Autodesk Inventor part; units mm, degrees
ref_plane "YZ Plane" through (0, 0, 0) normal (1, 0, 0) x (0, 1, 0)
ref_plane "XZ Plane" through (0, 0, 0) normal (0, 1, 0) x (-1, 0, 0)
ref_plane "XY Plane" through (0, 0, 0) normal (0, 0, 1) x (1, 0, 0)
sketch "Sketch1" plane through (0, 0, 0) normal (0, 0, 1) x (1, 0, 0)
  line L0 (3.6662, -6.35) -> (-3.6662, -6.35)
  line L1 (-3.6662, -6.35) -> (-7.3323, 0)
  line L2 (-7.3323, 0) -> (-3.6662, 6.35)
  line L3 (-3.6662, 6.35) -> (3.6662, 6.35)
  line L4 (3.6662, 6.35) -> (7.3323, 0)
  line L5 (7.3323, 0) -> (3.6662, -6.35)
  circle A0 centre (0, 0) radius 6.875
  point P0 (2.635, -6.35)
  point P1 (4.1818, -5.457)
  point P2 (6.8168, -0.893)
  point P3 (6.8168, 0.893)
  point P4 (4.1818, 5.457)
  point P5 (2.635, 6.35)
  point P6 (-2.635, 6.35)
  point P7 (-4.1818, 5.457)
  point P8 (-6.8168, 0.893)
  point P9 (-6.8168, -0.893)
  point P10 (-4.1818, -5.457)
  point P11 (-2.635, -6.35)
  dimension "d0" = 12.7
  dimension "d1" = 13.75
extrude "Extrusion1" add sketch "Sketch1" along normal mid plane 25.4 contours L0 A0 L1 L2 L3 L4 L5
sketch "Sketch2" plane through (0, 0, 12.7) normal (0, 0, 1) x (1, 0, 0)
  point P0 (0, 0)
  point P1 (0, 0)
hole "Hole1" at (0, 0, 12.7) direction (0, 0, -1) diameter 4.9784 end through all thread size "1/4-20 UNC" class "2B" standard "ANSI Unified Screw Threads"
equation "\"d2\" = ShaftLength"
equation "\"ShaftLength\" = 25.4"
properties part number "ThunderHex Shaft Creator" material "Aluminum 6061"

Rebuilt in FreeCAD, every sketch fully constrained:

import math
import FreeCAD as App
import Part
import Sketcher
from FreeCAD import Vector
Q = App.Units.Quantity

doc = App.newDocument("Part")
body = doc.addObject("PartDesign::Body", "Body")

sketch1 = body.newObject("Sketcher::SketchObject", "Sketch")
sketch1.AttachmentSupport = (doc.getObject("XY_Plane"), [""])
sketch1.MapMode = "FlatFace"
sketch1.addGeometry(Part.LineSegment(Vector(-2.6, -6.3, 0), Vector(2.6, -6.3, 0)), False)
sketch1.addGeometry(Part.ArcOfCircle(Part.Circle(Vector(0, 0, 0), Vector(0, 0, 1), 6.9), math.radians(-67.46), math.radians(-52.54)), False)
sketch1.addGeometry(Part.LineSegment(Vector(4.2, -5.5, 0), Vector(6.8, -0.9, 0)), False)
sketch1.addGeometry(Part.ArcOfCircle(Part.Circle(Vector(0, 0, 0), Vector(0, 0, 1), 6.9), math.radians(-7.46), math.radians(7.46)), False)
sketch1.addGeometry(Part.LineSegment(Vector(6.8, 0.9, 0), Vector(4.2, 5.5, 0)), False)
sketch1.addGeometry(Part.ArcOfCircle(Part.Circle(Vector(0, 0, 0), Vector(0, 0, 1), 6.9), math.radians(52.54), math.radians(67.46)), False)
sketch1.addGeometry(Part.LineSegment(Vector(2.6, 6.3, 0), Vector(-2.6, 6.3, 0)), False)
sketch1.addGeometry(Part.ArcOfCircle(Part.Circle(Vector(0, 0, 0), Vector(0, 0, 1), 6.9), math.radians(112.54), math.radians(127.46)), False)
sketch1.addGeometry(Part.LineSegment(Vector(-4.2, 5.5, 0), Vector(-6.8, 0.9, 0)), False)
sketch1.addGeometry(Part.ArcOfCircle(Part.Circle(Vector(0, 0, 0), Vector(0, 0, 1), 6.9), math.radians(172.54), math.radians(187.46)), False)
sketch1.addGeometry(Part.LineSegment(Vector(-6.8, -0.9, 0), Vector(-4.2, -5.5, 0)), False)
sketch1.addGeometry(Part.ArcOfCircle(Part.Circle(Vector(0, 0, 0), Vector(0, 0, 1), 6.9), math.radians(-127.46), math.radians(-112.54)), False)
sketch1.addConstraint(Sketcher.Constraint("Coincident", 0, 2, 1, 1))
sketch1.addConstraint(Sketcher.Constraint("Coincident", 1, 2, 2, 1))
sketch1.addConstraint(Sketcher.Constraint("Coincident", 2, 2, 3, 1))
sketch1.addConstraint(Sketcher.Constraint("Coincident", 3, 2, 4, 1))
sketch1.addConstraint(Sketcher.Constraint("Coincident", 4, 2, 5, 1))
sketch1.addConstraint(Sketcher.Constraint("Coincident", 5, 2, 6, 1))
sketch1.addConstraint(Sketcher.Constraint("Coincident", 6, 2, 7, 1))
sketch1.addConstraint(Sketcher.Constraint("Coincident", 7, 2, 8, 1))
sketch1.addConstraint(Sketcher.Constraint("Coincident", 8, 2, 9, 1))
sketch1.addConstraint(Sketcher.Constraint("Coincident", 9, 2, 10, 1))
sketch1.addConstraint(Sketcher.Constraint("Coincident", 10, 2, 11, 1))
sketch1.addConstraint(Sketcher.Constraint("Coincident", 11, 2, 0, 1))
sketch1.addConstraint(Sketcher.Constraint("Horizontal", 0))
sketch1.addConstraint(Sketcher.Constraint("Horizontal", 6))
sketch1.addConstraint(Sketcher.Constraint("Coincident", 1, 3, -1, 1))
sketch1.addConstraint(Sketcher.Constraint("Coincident", 3, 3, -1, 1))
sketch1.addConstraint(Sketcher.Constraint("Coincident", 5, 3, -1, 1))
sketch1.addConstraint(Sketcher.Constraint("Coincident", 7, 3, -1, 1))
sketch1.addConstraint(Sketcher.Constraint("Coincident", 9, 3, -1, 1))
sketch1.addConstraint(Sketcher.Constraint("Coincident", 11, 3, -1, 1))
sketch1.addConstraint(Sketcher.Constraint("Equal", 1, 3))
sketch1.addConstraint(Sketcher.Constraint("Equal", 3, 5))
sketch1.addConstraint(Sketcher.Constraint("Equal", 5, 7))
sketch1.addConstraint(Sketcher.Constraint("Equal", 7, 9))
sketch1.addConstraint(Sketcher.Constraint("Equal", 9, 11))
sketch1.addConstraint(Sketcher.Constraint("Parallel", 2, 8))
sketch1.addConstraint(Sketcher.Constraint("Parallel", 4, 10))
sketch1.addConstraint(Sketcher.Constraint("Horizontal", 4, 2, 7, 2))
sketch1.addConstraint(Sketcher.Constraint("Horizontal", 3, 2, 8, 2))
sketch1.addConstraint(Sketcher.Constraint("Horizontal", 2, 2, 9, 2))
sketch1.addConstraint(Sketcher.Constraint("Vertical", 2, 2, 3, 2))
sketch1.addConstraint(Sketcher.Constraint("Vertical", 0, 2, 5, 2))
sketch1.addConstraint(Sketcher.Constraint("Radius", 1, 6.875))
sketch1.addConstraint(Sketcher.Constraint("Angle", 2, Q("60.0005 deg")))
sketch1.addConstraint(Sketcher.Constraint("DistanceY", 0, 2, -1, 1, Q("0.25 in")))
sketch1.addConstraint(Sketcher.Constraint("DistanceY", 1, 2, 3, 2, Q("0.25 in")))
pad1 = body.newObject("PartDesign::Pad", "Pad")
pad1.Profile = sketch1
pad1.Length = Q("1 in")
pad1.Midplane = True

sketch2 = body.newObject("Sketcher::SketchObject", "Sketch001")
sketch2.AttachmentSupport = (doc.getObject("XY_Plane"), [""])
sketch2.MapMode = "FlatFace"
sketch2.AttachmentOffset = App.Placement(Vector(0, 0, 0.5 * 25.4), App.Rotation())
sketch2.addGeometry(Part.Circle(Vector(0, 0, 0), Vector(0, 0, 1), 2.5), False)
sketch2.addConstraint(Sketcher.Constraint("Coincident", 0, 3, -1, 1))
sketch2.addConstraint(Sketcher.Constraint("Diameter", 0, Q("0.196 in")))
doc.recompute()
hole = body.newObject("PartDesign::Hole", "Hole")
hole.Profile = sketch2
hole.ThreadType = "None"
hole.Diameter = Q("0.196 in")
hole.DepthType = "ThroughAll"

doc.recompute()
